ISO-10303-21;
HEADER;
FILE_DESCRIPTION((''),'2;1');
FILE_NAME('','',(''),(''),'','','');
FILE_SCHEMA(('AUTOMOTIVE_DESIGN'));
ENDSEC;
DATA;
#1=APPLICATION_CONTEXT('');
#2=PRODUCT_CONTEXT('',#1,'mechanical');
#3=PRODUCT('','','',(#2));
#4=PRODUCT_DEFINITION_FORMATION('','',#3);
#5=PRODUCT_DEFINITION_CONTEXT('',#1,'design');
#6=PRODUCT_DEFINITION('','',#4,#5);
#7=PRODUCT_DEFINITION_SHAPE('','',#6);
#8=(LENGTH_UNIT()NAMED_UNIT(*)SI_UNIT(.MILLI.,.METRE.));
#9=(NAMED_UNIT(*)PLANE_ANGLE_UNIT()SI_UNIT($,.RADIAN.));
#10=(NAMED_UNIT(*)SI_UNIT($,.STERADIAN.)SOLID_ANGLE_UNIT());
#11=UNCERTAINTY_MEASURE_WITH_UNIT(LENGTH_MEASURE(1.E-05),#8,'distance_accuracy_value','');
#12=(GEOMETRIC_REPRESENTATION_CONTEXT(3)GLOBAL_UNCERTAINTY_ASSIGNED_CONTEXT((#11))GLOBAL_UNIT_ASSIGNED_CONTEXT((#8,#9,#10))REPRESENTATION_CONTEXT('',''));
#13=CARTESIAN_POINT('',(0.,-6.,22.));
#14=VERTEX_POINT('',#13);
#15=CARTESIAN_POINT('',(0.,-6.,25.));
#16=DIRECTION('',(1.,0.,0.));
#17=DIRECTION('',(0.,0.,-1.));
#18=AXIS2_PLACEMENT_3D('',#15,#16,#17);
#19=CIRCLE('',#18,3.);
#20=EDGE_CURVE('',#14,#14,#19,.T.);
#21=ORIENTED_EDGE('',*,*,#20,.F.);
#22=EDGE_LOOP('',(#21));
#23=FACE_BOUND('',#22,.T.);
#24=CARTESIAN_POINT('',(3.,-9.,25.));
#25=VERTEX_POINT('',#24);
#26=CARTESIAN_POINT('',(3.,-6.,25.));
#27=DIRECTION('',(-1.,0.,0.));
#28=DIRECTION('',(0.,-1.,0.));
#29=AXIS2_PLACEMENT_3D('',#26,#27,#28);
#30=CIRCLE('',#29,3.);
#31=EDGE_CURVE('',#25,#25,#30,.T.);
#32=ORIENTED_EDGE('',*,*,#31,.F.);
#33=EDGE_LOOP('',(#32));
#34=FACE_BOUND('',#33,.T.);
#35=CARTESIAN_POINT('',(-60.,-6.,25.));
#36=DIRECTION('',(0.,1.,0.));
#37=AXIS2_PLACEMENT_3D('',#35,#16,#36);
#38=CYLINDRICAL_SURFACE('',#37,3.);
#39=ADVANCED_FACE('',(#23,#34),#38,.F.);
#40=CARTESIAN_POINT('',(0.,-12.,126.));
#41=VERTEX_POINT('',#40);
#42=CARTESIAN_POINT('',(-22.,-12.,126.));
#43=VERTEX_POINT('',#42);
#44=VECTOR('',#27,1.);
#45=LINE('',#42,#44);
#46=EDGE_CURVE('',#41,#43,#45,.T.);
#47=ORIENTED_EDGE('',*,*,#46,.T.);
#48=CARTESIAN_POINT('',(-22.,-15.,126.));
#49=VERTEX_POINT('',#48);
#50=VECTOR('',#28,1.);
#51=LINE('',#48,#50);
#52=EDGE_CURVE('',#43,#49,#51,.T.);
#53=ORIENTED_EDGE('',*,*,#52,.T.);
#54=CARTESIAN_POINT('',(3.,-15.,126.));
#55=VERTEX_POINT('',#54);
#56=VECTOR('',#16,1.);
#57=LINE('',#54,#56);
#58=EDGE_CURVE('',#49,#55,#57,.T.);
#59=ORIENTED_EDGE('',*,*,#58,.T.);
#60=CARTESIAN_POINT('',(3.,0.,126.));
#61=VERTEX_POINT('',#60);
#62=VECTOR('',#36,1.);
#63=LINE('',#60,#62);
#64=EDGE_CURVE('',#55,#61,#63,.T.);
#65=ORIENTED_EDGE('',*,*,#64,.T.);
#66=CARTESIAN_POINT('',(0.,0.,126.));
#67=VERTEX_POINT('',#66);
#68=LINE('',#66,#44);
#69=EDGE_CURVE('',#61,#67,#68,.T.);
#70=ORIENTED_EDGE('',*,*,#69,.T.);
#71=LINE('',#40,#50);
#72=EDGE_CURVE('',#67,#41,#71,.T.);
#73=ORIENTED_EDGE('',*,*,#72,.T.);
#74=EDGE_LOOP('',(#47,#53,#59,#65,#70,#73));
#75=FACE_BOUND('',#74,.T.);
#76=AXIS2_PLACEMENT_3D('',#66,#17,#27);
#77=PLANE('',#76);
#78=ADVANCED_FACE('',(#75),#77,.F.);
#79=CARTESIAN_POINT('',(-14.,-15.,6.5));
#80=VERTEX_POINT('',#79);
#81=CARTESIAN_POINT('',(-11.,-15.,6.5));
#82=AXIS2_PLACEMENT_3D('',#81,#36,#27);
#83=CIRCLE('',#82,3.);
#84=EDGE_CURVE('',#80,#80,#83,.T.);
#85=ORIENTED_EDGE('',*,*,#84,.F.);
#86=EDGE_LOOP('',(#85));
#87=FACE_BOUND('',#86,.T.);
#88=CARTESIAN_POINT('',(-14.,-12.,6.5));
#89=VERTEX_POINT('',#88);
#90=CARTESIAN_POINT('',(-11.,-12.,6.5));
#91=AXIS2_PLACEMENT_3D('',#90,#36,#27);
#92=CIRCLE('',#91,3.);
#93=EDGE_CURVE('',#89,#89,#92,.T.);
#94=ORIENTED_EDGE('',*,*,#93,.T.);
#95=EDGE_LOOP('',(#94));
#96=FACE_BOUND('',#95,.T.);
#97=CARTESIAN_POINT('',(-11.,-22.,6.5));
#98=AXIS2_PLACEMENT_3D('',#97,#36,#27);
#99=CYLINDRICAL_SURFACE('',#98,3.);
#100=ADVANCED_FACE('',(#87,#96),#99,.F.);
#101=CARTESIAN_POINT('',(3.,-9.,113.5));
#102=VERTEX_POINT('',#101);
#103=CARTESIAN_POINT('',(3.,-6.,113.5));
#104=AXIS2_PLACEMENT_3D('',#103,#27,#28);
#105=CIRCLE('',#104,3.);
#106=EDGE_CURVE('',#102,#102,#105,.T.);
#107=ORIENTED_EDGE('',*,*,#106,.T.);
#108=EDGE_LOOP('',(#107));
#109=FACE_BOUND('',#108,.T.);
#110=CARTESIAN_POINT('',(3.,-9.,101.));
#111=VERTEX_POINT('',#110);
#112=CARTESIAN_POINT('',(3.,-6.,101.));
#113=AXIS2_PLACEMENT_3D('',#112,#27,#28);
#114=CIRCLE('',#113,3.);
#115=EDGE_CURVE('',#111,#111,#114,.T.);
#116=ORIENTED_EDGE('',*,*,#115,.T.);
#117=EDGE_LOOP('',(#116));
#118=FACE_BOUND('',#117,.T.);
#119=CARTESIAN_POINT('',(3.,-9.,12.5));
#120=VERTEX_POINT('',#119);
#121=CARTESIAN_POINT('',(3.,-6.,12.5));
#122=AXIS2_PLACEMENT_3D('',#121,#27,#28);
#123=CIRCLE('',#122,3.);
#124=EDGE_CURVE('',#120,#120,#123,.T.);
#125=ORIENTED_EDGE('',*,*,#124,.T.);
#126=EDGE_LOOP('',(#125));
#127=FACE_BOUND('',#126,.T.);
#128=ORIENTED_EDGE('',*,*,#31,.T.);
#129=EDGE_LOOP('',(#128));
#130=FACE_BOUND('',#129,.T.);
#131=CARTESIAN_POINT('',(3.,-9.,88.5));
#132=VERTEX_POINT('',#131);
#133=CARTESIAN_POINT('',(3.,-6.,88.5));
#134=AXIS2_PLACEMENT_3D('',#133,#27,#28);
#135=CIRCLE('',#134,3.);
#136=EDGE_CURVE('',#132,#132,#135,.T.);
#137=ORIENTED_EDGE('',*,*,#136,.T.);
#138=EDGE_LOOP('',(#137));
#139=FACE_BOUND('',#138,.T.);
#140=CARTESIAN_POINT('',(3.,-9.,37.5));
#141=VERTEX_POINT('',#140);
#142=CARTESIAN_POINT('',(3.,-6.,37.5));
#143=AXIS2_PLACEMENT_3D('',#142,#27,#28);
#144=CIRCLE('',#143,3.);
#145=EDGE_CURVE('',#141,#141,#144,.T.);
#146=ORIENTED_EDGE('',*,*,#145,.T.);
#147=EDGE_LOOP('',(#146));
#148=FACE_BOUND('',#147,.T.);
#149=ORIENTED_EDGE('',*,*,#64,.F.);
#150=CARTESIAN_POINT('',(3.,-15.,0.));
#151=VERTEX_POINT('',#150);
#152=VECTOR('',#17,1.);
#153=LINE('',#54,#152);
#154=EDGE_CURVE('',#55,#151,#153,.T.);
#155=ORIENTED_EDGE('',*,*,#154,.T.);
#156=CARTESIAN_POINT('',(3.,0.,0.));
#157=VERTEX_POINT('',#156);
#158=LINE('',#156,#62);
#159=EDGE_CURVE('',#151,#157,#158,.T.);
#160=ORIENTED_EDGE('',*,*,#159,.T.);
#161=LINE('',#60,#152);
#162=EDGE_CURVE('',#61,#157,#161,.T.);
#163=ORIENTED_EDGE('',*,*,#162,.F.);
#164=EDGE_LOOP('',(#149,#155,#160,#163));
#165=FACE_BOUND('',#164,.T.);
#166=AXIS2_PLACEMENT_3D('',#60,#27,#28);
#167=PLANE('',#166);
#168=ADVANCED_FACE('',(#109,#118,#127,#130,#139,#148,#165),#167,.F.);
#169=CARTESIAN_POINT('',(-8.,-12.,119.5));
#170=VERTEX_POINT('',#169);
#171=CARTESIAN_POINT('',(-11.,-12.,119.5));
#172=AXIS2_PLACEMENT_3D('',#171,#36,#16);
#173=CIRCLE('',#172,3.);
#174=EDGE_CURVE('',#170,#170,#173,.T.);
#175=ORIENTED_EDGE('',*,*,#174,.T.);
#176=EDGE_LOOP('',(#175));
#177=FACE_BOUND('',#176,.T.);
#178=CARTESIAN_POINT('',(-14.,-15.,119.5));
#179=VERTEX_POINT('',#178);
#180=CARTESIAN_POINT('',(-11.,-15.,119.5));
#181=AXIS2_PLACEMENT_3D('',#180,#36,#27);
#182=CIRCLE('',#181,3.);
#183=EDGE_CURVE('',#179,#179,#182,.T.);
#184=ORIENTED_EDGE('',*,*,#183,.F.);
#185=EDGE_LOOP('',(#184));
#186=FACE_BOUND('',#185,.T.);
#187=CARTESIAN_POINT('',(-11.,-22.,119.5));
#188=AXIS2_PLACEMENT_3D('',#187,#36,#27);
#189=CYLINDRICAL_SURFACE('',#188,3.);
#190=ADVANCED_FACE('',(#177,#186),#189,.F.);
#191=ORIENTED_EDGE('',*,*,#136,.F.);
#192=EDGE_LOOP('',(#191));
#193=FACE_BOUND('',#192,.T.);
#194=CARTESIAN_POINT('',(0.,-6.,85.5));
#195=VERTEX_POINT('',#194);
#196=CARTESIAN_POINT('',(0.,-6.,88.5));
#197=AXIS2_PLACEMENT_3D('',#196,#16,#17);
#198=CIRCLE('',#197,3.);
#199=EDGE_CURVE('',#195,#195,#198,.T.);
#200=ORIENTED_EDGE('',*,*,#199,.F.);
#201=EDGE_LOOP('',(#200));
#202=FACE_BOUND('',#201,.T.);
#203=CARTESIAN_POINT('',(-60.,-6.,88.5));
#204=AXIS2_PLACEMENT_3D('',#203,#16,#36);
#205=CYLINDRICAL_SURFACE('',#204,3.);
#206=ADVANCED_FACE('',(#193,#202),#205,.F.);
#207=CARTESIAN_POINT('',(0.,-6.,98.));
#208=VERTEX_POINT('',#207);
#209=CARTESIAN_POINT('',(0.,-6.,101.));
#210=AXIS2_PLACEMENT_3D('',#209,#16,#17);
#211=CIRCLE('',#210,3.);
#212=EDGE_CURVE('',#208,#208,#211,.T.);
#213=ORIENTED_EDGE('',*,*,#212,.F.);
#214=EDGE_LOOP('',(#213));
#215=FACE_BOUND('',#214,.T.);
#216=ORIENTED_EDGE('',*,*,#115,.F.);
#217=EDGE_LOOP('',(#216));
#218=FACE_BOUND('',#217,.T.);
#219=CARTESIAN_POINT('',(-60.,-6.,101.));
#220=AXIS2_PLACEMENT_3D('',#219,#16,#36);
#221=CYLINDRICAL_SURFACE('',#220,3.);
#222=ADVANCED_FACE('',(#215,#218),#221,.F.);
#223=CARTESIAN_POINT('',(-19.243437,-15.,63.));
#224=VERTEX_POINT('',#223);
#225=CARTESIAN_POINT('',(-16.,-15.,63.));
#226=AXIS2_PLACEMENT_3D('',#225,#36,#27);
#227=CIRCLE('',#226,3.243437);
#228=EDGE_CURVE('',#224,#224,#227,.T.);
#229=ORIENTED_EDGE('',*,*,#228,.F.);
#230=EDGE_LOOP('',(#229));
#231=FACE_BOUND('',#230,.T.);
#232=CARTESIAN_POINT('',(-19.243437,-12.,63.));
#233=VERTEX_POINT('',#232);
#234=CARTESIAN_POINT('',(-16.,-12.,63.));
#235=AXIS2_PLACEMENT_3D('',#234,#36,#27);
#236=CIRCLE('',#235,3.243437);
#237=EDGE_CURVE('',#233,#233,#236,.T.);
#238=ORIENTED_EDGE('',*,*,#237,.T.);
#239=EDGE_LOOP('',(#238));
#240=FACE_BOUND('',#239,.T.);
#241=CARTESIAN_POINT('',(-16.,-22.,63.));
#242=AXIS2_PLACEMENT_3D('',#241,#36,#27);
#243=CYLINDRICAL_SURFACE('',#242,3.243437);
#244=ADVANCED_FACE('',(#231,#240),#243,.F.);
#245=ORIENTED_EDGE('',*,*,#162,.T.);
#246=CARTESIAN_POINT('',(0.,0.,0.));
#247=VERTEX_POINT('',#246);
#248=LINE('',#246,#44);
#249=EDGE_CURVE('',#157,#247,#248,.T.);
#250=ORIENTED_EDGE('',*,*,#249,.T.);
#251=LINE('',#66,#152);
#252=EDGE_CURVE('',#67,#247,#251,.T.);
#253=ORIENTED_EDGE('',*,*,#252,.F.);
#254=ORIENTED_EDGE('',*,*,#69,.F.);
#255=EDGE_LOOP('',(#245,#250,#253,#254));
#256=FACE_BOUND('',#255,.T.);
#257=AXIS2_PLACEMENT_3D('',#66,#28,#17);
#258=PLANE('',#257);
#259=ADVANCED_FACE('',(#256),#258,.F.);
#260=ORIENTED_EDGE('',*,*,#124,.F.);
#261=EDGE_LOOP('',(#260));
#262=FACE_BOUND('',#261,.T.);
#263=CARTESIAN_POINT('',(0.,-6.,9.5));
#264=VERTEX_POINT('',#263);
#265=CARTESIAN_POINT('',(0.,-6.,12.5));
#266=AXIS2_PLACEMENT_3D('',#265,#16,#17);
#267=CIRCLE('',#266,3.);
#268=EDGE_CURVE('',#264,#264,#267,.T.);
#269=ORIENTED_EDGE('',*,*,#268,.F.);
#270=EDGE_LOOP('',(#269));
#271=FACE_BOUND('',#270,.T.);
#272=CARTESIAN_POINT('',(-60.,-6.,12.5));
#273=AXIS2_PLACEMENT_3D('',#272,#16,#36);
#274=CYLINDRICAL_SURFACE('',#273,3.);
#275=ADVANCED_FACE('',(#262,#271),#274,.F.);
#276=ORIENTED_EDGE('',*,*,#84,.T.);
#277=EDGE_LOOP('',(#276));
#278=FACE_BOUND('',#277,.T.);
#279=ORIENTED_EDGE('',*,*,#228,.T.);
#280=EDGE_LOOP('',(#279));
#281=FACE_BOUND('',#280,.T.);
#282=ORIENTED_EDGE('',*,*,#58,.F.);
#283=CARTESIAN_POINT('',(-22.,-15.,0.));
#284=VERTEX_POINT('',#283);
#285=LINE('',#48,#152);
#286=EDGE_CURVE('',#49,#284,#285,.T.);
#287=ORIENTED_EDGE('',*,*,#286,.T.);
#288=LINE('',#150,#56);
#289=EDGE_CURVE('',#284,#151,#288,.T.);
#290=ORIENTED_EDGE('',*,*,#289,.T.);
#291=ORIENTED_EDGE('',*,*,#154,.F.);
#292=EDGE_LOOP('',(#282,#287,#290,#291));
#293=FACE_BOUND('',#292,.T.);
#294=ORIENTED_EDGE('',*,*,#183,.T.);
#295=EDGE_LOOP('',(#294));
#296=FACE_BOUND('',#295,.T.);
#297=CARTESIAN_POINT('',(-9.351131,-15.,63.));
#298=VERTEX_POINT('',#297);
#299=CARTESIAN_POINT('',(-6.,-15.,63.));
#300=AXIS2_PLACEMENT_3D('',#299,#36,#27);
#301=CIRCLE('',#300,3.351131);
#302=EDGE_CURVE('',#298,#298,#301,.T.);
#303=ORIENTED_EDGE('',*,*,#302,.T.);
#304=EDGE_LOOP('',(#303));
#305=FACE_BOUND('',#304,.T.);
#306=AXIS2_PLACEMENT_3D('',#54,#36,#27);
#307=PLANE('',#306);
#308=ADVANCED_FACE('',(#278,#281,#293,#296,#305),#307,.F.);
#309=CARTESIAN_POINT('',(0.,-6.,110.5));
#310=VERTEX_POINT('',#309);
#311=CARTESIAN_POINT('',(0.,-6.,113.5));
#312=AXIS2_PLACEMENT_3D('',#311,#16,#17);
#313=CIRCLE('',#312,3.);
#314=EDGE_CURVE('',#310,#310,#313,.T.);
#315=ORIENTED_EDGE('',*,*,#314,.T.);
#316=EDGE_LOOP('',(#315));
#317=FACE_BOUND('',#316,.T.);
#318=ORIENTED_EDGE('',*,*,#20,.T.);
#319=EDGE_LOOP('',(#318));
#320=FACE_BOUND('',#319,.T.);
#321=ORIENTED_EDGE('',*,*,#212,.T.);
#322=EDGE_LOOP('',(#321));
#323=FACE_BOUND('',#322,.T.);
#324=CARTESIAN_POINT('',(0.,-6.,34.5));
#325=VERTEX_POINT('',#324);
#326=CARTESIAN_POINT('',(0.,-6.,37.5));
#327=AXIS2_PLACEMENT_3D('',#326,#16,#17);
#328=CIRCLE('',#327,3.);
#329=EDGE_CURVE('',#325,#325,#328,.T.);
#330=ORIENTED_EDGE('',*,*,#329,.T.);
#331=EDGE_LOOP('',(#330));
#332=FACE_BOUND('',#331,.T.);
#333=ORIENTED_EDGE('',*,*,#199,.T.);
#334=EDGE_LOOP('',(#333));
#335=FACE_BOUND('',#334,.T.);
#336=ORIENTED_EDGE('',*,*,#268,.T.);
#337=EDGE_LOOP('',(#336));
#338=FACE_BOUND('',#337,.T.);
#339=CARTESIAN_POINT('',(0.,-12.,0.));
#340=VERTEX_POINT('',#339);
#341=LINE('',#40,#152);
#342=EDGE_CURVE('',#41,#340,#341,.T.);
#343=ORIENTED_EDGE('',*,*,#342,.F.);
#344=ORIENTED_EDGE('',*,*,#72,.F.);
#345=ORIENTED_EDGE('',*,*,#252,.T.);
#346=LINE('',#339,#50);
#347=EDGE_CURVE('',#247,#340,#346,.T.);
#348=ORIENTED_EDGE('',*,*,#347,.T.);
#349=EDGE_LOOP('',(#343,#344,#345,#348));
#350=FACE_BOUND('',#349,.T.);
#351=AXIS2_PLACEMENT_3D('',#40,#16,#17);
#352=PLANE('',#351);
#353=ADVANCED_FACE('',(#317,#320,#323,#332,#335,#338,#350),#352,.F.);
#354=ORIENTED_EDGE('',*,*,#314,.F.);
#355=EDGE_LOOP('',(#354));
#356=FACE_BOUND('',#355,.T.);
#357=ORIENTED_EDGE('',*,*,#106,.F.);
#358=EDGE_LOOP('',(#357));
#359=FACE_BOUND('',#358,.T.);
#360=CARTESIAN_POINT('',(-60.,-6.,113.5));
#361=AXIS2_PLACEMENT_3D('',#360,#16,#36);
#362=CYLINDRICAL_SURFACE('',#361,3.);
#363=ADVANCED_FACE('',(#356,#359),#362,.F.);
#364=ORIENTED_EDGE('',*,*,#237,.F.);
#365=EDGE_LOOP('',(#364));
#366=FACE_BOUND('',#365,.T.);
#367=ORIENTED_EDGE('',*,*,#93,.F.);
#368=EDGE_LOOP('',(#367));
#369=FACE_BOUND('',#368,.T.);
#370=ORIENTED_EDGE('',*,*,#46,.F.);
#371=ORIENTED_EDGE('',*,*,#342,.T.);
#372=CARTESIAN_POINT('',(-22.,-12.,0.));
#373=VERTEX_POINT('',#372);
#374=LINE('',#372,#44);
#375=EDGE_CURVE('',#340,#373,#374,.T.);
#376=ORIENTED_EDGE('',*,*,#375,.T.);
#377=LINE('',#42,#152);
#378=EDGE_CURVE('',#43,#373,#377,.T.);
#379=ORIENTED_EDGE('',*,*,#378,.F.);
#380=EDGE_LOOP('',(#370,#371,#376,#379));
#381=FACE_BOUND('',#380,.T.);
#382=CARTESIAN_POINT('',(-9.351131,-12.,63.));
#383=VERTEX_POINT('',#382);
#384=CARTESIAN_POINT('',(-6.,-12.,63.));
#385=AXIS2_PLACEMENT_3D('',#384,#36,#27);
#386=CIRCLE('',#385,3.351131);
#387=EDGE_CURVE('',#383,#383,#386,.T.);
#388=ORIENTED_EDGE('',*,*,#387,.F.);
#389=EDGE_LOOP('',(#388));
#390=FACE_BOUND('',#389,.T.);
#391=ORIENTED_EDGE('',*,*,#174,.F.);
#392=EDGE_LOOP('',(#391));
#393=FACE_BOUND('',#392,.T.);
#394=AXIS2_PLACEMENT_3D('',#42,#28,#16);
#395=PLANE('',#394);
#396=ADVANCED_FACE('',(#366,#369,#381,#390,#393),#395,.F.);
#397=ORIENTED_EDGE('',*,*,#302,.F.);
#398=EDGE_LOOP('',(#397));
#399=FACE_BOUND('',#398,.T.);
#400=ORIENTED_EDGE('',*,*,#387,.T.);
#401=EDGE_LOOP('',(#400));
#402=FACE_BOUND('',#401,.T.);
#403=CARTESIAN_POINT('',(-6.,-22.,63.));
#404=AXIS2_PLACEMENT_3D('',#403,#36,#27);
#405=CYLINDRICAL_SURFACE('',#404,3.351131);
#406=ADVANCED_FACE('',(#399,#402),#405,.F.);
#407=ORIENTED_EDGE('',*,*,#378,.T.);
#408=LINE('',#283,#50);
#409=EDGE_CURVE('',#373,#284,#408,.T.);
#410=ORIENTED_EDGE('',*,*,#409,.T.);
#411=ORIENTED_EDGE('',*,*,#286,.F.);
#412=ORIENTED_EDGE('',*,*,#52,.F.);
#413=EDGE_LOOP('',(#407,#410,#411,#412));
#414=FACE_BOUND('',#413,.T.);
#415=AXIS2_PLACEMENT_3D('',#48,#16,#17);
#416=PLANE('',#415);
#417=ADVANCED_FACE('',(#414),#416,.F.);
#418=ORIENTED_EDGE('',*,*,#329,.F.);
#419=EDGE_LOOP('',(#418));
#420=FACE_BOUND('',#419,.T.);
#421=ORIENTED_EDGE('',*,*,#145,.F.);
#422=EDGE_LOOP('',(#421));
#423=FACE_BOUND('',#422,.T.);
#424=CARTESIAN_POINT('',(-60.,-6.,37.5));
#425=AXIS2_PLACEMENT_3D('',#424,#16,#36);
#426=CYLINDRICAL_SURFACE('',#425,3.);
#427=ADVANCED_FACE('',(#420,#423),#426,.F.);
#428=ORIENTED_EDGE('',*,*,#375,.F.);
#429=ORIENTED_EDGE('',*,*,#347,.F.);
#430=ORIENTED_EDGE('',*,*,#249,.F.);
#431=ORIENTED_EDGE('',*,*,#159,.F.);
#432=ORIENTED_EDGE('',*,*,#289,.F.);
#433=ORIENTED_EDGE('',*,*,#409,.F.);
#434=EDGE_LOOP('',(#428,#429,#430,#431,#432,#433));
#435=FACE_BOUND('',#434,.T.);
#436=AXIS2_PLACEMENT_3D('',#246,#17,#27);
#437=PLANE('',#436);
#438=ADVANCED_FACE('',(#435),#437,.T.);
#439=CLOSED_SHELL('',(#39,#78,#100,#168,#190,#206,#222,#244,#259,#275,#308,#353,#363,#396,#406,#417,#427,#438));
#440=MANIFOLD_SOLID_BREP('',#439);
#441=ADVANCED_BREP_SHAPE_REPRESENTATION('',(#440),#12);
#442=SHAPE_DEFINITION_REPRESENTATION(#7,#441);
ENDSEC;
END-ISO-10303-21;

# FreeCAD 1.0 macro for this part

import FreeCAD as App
import Part
import Sketcher
from FreeCAD import Vector
Q = App.Units.Quantity


def add_polygon(sketch, points):
    """Adds a closed chain of lines whose ends are joined by coincident constraints."""
    first, n = sketch.GeometryCount, len(points)
    for a, b in zip(points, points[1:] + points[:1]):
        sketch.addGeometry(Part.LineSegment(App.Vector(*a, 0), App.Vector(*b, 0)), False)
    for i in range(n):
        sketch.addConstraint(Sketcher.Constraint("Coincident", first + i, 2, first + (i + 1) % n, 1))

doc = App.newDocument("Part")
params = doc.addObject("Spreadsheet::Sheet", "Params")
for row, (alias, value) in enumerate([
    ("sketch1_width", "3 mm"),
    ("sketch1_width2", "22 mm"),
    ("sketch1_height", "12 mm"),
    ("pad1_length", "126 mm"),
    ("sketch2_diameter", "6 mm"),
    ("pocket1_length", "126 mm"),
    ("sketch3_diameter", "6 mm"),
    ("pocket2_length", "10 mm"),
], start=1):
    params.set(f"A{row}", alias)
    params.set(f"B{row}", "=" + value)
    params.setAlias(f"B{row}", alias)

body = doc.addObject("PartDesign::Body", "Body")

# Sketch on XY plane
sketch1 = body.newObject("Sketcher::SketchObject", "Sketch")
sketch1.AttachmentSupport = (doc.getObject("XY_Plane"), [""])
sketch1.MapMode = "FlatFace"
add_polygon(sketch1, [(3, 0), (0, 0), (0, -12), (-22, -12), (-22, -15), (3, -15)])  # lines 0-5
sketch1.addConstraint([
    Sketcher.Constraint("Horizontal", 0),
    Sketcher.Constraint("Vertical", 1),
    Sketcher.Constraint("Horizontal", 2),
    Sketcher.Constraint("Vertical", 3),
    Sketcher.Constraint("Horizontal", 4),
    Sketcher.Constraint("Vertical", 5),
    Sketcher.Constraint("Coincident", 0, 2, -1, 1),
    Sketcher.Constraint("Equal", 0, 3),
    Sketcher.Constraint("DistanceX", 0, 2, 0, 1, Q("3 mm")),
    Sketcher.Constraint("DistanceX", 2, 2, 2, 1, Q("22 mm")),
    Sketcher.Constraint("DistanceY", 1, 2, 1, 1, Q("12 mm")),
])
sketch1.setExpression("Constraints[14]", "Params.sketch1_width")
sketch1.setExpression("Constraints[15]", "Params.sketch1_width2")
sketch1.setExpression("Constraints[16]", "Params.sketch1_height")
pad1 = body.newObject("PartDesign::Pad", "Pad")
pad1.Profile = sketch1
pad1.setExpression("Length", "Params.pad1_length")

# Sketch on YZ plane
sketch2 = body.newObject("Sketcher::SketchObject", "Sketch001")
sketch2.AttachmentSupport = (doc.getObject("YZ_Plane"), [""])
sketch2.MapMode = "FlatFace"
sketch2.AttachmentOffset = App.Placement(Vector(0, 0, 3), App.Rotation())
sketch2.addGeometry([
    Part.Circle(Vector(-6, 113.5, 0), Vector(0, 0, 1), 3),  # 0
    Part.Circle(Vector(-6, 101, 0), Vector(0, 0, 1), 3),  # 1
    Part.Circle(Vector(-6, 88.5, 0), Vector(0, 0, 1), 3),  # 2
    Part.Circle(Vector(-6, 12.5, 0), Vector(0, 0, 1), 3),  # 3
    Part.Circle(Vector(-6, 25, 0), Vector(0, 0, 1), 3),  # 4
    Part.Circle(Vector(-6, 37.5, 0), Vector(0, 0, 1), 3),  # 5
], False)
sketch2.addConstraint([
    Sketcher.Constraint("Equal", 0, 1),
    Sketcher.Constraint("Equal", 1, 2),
    Sketcher.Constraint("Equal", 2, 3),
    Sketcher.Constraint("Equal", 3, 4),
    Sketcher.Constraint("Equal", 4, 5),
    Sketcher.Constraint("Vertical", 0, 3, 1, 3),
    Sketcher.Constraint("Vertical", 1, 3, 2, 3),
    Sketcher.Constraint("Vertical", 2, 3, 3, 3),
    Sketcher.Constraint("Vertical", 3, 3, 4, 3),
    Sketcher.Constraint("Vertical", 4, 3, 5, 3),
    Sketcher.Constraint("Diameter", 0, Q("6 mm")),
    Sketcher.Constraint("DistanceX", 0, 3, -1, 1, Q("6 mm")),
    Sketcher.Constraint("DistanceY", -1, 1, 1, 3, Q("101 mm")),
    Sketcher.Constraint("DistanceY", -1, 1, 4, 3, Q("25 mm")),
    Sketcher.Constraint("DistanceY", 2, 3, 0, 3, Q("25 mm")),
    Sketcher.Constraint("DistanceY", 3, 3, 2, 3, Q("76 mm")),
    Sketcher.Constraint("DistanceY", 3, 3, 5, 3, Q("25 mm")),
    Sketcher.Constraint("DistanceY", -1, 1, 0, 3, Q("113.5 mm")),
])
sketch2.setExpression("Constraints[10]", "Params.sketch2_diameter")
pocket1 = body.newObject("PartDesign::Pocket", "Pocket")
pocket1.Profile = sketch2
pocket1.setExpression("Length", "Params.pocket1_length")
pocket1.Midplane = True

# Sketch on XZ plane
sketch3 = body.newObject("Sketcher::SketchObject", "Sketch002")
sketch3.AttachmentSupport = (doc.getObject("XZ_Plane"), [""])
sketch3.MapMode = "FlatFace"
sketch3.AttachmentOffset = App.Placement(Vector(0, 0, 12), App.Rotation())
sketch3.addGeometry([
    Part.Circle(Vector(-11, 6.5, 0), Vector(0, 0, 1), 3),
    Part.Circle(Vector(-11, 119.5, 0), Vector(0, 0, 1), 3),
    Part.Circle(Vector(-16, 63, 0), Vector(0, 0, 1), 3.243437),
    Part.Circle(Vector(-6, 63, 0), Vector(0, 0, 1), 3.351131),
], False)
sketch3.addConstraint([
    Sketcher.Constraint("Equal", 0, 1),
    Sketcher.Constraint("Horizontal", 2, 3, 3, 3),
    Sketcher.Constraint("Vertical", 0, 3, 1, 3),
    Sketcher.Constraint("Diameter", 0, Q("6 mm")),
    Sketcher.Constraint("DistanceX", 0, 3, -1, 1, Q("11 mm")),
    Sketcher.Constraint("DistanceX", 2, 3, -1, 1, Q("16 mm")),
    Sketcher.Constraint("DistanceY", -1, 1, 2, 3, Q("63 mm")),
    Sketcher.Constraint("DistanceX", 3, 3, -1, 1, Q("6 mm")),
    Sketcher.Constraint("DistanceY", 0, 3, 1, 3, Q("113 mm")),
    Sketcher.Constraint("DistanceY", -1, 1, 0, 3, Q("6.5 mm")),
    Sketcher.Constraint("Diameter", 3, Q("6.702261 mm")),
    Sketcher.Constraint("Diameter", 2, Q("6.486875 mm")),
])
sketch3.setExpression("Constraints[3]", "Params.sketch3_diameter")
pocket2 = body.newObject("PartDesign::Pocket", "Pocket001")
pocket2.Profile = sketch3
pocket2.setExpression("Length", "Params.pocket2_length")
pocket2.Reversed = True

doc.recompute()
